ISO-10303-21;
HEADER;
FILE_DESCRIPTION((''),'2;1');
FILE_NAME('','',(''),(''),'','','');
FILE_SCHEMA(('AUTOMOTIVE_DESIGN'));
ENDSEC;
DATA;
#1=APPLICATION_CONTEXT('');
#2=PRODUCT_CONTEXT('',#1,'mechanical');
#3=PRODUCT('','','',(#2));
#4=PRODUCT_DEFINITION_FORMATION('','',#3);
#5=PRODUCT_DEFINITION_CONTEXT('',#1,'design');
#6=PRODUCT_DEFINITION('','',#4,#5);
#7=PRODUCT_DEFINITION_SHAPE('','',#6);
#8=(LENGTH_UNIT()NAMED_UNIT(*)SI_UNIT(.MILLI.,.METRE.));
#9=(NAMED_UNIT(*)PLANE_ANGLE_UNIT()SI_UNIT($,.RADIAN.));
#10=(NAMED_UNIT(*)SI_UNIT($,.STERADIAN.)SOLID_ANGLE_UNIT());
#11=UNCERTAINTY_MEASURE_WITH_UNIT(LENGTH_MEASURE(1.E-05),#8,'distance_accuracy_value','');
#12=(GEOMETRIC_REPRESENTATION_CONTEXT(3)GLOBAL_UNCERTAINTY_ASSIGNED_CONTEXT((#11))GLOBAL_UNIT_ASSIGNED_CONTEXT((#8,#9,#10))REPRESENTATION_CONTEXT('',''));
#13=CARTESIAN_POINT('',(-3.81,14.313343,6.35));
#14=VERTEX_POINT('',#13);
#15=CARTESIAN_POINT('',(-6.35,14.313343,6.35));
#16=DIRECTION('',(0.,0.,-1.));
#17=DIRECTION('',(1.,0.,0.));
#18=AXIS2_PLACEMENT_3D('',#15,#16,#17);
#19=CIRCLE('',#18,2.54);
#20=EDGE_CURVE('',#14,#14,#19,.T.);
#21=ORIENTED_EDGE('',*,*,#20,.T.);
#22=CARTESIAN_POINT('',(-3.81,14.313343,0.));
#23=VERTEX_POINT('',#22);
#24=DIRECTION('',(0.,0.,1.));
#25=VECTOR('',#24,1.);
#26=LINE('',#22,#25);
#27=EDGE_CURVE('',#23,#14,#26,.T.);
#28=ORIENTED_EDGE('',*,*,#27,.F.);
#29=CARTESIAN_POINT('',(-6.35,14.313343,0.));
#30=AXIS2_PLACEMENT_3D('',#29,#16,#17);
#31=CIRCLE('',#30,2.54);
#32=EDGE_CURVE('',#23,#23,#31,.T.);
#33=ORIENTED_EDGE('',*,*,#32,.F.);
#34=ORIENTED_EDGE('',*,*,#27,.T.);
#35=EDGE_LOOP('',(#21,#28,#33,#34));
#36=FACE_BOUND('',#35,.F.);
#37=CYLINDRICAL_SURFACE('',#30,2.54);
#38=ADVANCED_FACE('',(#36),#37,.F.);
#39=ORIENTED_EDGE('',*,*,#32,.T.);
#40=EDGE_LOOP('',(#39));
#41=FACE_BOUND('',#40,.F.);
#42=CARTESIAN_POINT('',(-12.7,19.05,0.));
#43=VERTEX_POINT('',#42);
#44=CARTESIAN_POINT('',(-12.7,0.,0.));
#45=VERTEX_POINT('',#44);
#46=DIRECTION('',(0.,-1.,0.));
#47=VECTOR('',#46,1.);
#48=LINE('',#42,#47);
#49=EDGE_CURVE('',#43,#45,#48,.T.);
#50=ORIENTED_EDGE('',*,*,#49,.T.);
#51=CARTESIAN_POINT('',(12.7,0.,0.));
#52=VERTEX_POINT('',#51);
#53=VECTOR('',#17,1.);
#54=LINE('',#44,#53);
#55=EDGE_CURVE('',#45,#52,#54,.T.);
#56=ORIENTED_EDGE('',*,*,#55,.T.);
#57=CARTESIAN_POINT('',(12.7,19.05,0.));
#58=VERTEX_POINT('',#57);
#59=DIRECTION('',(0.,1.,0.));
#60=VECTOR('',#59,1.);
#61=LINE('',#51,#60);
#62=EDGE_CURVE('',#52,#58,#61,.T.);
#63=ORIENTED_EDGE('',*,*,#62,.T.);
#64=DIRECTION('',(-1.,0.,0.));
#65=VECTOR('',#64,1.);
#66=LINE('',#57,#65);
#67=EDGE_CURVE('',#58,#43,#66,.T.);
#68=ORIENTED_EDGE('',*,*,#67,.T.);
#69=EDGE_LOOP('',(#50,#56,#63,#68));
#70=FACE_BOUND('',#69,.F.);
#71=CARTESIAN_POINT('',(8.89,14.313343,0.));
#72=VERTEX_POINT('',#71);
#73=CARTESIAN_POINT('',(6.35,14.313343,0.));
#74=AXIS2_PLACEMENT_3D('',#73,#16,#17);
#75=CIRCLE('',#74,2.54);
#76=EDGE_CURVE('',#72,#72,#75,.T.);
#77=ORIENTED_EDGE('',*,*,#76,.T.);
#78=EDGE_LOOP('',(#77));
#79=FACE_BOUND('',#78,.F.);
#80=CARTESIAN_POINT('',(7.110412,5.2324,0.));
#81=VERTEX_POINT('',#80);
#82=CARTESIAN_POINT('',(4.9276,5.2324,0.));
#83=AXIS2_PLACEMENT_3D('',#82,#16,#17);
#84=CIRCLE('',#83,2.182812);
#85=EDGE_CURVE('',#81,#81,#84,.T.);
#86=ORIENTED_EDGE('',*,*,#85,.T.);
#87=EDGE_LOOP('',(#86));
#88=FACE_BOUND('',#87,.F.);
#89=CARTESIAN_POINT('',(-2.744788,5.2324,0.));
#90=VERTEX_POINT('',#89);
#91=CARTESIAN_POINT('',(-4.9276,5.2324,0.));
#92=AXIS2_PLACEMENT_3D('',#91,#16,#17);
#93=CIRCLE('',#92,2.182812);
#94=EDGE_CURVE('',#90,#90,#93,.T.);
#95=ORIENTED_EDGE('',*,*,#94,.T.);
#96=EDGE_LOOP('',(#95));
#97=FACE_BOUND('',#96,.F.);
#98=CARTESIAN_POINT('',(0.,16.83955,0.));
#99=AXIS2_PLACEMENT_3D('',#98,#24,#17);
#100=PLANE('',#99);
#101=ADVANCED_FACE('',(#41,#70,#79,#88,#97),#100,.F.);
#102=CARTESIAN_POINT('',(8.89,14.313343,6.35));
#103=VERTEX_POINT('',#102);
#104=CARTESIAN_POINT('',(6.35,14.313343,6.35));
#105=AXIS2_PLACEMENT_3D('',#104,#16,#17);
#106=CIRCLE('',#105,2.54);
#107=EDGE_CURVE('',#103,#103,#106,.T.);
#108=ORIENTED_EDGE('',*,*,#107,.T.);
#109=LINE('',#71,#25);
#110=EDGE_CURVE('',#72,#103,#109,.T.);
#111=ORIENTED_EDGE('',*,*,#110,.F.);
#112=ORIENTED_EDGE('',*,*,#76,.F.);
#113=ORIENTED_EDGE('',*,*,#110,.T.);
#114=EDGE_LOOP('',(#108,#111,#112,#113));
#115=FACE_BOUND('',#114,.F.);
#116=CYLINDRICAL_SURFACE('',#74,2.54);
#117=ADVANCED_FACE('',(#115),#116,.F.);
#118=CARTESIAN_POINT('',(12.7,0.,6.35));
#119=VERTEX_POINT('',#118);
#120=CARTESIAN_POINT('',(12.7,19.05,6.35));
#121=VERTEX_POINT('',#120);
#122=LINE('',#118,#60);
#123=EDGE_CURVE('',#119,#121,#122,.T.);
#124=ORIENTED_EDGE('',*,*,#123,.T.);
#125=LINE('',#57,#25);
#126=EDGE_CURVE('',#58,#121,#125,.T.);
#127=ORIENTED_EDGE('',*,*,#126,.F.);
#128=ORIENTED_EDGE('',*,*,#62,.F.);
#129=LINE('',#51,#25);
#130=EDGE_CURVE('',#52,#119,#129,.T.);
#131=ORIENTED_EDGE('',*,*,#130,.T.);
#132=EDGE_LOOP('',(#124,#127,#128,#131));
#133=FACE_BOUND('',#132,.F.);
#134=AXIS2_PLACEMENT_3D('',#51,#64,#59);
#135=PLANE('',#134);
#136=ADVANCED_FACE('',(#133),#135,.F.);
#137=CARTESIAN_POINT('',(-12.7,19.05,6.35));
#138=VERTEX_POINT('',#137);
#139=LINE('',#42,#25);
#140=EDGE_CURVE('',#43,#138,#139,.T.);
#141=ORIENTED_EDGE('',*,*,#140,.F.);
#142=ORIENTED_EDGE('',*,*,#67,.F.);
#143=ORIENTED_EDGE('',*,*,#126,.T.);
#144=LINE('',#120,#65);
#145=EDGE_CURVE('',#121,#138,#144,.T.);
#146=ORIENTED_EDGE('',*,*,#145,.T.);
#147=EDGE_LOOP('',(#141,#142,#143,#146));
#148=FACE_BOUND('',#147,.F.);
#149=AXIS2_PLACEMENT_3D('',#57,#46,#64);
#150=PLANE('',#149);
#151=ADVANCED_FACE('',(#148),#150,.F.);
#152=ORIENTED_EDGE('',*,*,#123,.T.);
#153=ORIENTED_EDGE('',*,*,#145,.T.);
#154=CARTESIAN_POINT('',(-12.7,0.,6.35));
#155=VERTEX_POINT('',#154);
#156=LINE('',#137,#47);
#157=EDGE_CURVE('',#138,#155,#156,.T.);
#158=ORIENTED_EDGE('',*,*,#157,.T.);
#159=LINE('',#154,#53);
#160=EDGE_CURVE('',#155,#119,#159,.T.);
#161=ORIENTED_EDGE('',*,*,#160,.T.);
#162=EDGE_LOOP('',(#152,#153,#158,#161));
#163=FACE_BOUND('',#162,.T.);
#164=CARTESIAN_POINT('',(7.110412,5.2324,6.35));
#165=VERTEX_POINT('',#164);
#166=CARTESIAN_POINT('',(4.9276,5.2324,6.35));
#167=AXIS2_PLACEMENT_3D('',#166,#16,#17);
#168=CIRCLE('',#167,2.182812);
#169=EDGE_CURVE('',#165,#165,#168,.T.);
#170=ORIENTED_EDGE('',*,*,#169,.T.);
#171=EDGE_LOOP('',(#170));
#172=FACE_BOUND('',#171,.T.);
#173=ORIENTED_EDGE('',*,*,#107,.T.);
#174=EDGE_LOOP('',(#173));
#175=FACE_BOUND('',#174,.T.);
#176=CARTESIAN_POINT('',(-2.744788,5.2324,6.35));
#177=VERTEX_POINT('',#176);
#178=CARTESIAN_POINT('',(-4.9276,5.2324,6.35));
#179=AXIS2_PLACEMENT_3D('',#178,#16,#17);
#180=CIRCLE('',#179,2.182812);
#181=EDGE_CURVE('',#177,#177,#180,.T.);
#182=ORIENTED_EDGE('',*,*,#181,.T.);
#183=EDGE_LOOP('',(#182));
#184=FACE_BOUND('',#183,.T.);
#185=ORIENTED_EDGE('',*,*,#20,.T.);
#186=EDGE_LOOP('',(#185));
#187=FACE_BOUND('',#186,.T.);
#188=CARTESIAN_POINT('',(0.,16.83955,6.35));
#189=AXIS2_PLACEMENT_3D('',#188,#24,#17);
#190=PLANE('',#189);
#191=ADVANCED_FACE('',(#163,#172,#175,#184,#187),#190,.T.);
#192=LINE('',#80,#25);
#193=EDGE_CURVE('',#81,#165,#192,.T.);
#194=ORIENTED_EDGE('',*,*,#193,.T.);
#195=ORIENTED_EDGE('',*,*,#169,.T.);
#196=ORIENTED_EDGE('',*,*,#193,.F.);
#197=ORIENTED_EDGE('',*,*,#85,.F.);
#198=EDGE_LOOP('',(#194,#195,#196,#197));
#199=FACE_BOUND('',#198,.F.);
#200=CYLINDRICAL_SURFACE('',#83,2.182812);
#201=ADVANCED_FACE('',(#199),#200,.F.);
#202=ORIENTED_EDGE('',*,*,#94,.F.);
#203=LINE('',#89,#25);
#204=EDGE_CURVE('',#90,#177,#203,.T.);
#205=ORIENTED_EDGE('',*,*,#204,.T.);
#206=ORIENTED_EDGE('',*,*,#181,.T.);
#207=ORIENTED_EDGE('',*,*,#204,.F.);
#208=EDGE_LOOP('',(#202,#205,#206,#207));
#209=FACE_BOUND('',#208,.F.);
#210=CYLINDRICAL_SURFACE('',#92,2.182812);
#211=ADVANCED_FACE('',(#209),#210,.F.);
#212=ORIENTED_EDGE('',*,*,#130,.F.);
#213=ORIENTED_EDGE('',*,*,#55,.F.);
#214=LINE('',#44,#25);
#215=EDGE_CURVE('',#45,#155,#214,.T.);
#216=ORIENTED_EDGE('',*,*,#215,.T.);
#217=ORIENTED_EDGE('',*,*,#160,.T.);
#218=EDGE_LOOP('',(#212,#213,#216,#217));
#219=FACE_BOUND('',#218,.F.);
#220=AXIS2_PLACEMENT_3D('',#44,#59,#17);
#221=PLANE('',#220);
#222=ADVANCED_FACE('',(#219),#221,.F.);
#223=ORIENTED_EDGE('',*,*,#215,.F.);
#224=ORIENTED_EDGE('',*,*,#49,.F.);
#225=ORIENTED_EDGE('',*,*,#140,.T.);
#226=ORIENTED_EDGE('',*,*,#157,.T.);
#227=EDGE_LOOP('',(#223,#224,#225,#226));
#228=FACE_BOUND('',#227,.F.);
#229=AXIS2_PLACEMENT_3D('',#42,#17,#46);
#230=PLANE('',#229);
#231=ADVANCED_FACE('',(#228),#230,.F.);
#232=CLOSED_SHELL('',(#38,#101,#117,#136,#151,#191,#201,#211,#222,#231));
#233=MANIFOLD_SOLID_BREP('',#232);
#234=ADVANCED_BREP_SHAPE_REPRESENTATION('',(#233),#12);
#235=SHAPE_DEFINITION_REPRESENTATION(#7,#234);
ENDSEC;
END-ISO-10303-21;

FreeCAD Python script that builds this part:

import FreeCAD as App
import Part
import Sketcher
Q = App.Units.Quantity


def add_polygon(sketch, points):
    """Adds a closed chain of lines whose ends are joined by coincident constraints."""
    first, n = sketch.GeometryCount, len(points)
    for a, b in zip(points, points[1:] + points[:1]):
        sketch.addGeometry(Part.LineSegment(App.Vector(*a, 0), App.Vector(*b, 0)), False)
    for i in range(n):
        sketch.addConstraint(Sketcher.Constraint("Coincident", first + i, 2, first + (i + 1) % n, 1))

doc = App.newDocument("Part")
body = doc.addObject("PartDesign::Body", "Body")

sketch1 = body.newObject("Sketcher::SketchObject", "Sketch")
sketch1.AttachmentSupport = (doc.getObject("XY_Plane"), [""])
sketch1.MapMode = "FlatFace"
add_polygon(sketch1, [(12.7, 19.1), (-12.7, 19.1), (-12.7, 0), (12.7, 0)])
sketch1.addGeometry(Part.Circle(App.Vector(-4.9, 5.2, 0), App.Vector(0, 0, 1), 2.2), False)
sketch1.addGeometry(Part.Circle(App.Vector(4.9, 5.2, 0), App.Vector(0, 0, 1), 2.2), False)
sketch1.addGeometry(Part.Circle(App.Vector(-6.3, 14.3, 0), App.Vector(0, 0, 1), 2.5), False)
sketch1.addGeometry(Part.Circle(App.Vector(6.3, 14.3, 0), App.Vector(0, 0, 1), 2.5), False)
sketch1.addConstraint(Sketcher.Constraint("Horizontal", 0))
sketch1.addConstraint(Sketcher.Constraint("Vertical", 1))
sketch1.addConstraint(Sketcher.Constraint("Horizontal", 2))
sketch1.addConstraint(Sketcher.Constraint("Vertical", 3))
sketch1.addConstraint(Sketcher.Constraint("Equal", 4, 5))
sketch1.addConstraint(Sketcher.Constraint("Equal", 6, 7))
sketch1.addConstraint(Sketcher.Constraint("Symmetric", 1, 2, 2, 2, -1, 1))
sketch1.addConstraint(Sketcher.Constraint("Symmetric", 4, 3, 5, 3, -2))
sketch1.addConstraint(Sketcher.Constraint("Symmetric", 6, 3, 7, 3, -2))
sketch1.addConstraint(Sketcher.Constraint("Diameter", 6, Q("0.2 in")))
sketch1.addConstraint(Sketcher.Constraint("DistanceX", 0, 2, 0, 1, Q("1 in")))
sketch1.addConstraint(Sketcher.Constraint("Diameter", 4, Q("0.171875 in")))
sketch1.addConstraint(Sketcher.Constraint("DistanceY", 1, 2, 1, 1, Q("0.75 in")))
sketch1.addConstraint(Sketcher.Constraint("DistanceX", 6, 3, 7, 3, Q("0.5 in")))
sketch1.addConstraint(Sketcher.Constraint("DistanceX", 4, 3, -1, 1, Q("0.194 in")))
sketch1.addConstraint(Sketcher.Constraint("DistanceY", -1, 1, 4, 3, Q("0.206 in")))
sketch1.addConstraint(Sketcher.Constraint("DistanceY", -1, 1, 6, 3, Q("14.313343 mm")))
pad1 = body.newObject("PartDesign::Pad", "Pad")
pad1.Profile = sketch1
pad1.Length = Q("0.25 in")

doc.recompute()
